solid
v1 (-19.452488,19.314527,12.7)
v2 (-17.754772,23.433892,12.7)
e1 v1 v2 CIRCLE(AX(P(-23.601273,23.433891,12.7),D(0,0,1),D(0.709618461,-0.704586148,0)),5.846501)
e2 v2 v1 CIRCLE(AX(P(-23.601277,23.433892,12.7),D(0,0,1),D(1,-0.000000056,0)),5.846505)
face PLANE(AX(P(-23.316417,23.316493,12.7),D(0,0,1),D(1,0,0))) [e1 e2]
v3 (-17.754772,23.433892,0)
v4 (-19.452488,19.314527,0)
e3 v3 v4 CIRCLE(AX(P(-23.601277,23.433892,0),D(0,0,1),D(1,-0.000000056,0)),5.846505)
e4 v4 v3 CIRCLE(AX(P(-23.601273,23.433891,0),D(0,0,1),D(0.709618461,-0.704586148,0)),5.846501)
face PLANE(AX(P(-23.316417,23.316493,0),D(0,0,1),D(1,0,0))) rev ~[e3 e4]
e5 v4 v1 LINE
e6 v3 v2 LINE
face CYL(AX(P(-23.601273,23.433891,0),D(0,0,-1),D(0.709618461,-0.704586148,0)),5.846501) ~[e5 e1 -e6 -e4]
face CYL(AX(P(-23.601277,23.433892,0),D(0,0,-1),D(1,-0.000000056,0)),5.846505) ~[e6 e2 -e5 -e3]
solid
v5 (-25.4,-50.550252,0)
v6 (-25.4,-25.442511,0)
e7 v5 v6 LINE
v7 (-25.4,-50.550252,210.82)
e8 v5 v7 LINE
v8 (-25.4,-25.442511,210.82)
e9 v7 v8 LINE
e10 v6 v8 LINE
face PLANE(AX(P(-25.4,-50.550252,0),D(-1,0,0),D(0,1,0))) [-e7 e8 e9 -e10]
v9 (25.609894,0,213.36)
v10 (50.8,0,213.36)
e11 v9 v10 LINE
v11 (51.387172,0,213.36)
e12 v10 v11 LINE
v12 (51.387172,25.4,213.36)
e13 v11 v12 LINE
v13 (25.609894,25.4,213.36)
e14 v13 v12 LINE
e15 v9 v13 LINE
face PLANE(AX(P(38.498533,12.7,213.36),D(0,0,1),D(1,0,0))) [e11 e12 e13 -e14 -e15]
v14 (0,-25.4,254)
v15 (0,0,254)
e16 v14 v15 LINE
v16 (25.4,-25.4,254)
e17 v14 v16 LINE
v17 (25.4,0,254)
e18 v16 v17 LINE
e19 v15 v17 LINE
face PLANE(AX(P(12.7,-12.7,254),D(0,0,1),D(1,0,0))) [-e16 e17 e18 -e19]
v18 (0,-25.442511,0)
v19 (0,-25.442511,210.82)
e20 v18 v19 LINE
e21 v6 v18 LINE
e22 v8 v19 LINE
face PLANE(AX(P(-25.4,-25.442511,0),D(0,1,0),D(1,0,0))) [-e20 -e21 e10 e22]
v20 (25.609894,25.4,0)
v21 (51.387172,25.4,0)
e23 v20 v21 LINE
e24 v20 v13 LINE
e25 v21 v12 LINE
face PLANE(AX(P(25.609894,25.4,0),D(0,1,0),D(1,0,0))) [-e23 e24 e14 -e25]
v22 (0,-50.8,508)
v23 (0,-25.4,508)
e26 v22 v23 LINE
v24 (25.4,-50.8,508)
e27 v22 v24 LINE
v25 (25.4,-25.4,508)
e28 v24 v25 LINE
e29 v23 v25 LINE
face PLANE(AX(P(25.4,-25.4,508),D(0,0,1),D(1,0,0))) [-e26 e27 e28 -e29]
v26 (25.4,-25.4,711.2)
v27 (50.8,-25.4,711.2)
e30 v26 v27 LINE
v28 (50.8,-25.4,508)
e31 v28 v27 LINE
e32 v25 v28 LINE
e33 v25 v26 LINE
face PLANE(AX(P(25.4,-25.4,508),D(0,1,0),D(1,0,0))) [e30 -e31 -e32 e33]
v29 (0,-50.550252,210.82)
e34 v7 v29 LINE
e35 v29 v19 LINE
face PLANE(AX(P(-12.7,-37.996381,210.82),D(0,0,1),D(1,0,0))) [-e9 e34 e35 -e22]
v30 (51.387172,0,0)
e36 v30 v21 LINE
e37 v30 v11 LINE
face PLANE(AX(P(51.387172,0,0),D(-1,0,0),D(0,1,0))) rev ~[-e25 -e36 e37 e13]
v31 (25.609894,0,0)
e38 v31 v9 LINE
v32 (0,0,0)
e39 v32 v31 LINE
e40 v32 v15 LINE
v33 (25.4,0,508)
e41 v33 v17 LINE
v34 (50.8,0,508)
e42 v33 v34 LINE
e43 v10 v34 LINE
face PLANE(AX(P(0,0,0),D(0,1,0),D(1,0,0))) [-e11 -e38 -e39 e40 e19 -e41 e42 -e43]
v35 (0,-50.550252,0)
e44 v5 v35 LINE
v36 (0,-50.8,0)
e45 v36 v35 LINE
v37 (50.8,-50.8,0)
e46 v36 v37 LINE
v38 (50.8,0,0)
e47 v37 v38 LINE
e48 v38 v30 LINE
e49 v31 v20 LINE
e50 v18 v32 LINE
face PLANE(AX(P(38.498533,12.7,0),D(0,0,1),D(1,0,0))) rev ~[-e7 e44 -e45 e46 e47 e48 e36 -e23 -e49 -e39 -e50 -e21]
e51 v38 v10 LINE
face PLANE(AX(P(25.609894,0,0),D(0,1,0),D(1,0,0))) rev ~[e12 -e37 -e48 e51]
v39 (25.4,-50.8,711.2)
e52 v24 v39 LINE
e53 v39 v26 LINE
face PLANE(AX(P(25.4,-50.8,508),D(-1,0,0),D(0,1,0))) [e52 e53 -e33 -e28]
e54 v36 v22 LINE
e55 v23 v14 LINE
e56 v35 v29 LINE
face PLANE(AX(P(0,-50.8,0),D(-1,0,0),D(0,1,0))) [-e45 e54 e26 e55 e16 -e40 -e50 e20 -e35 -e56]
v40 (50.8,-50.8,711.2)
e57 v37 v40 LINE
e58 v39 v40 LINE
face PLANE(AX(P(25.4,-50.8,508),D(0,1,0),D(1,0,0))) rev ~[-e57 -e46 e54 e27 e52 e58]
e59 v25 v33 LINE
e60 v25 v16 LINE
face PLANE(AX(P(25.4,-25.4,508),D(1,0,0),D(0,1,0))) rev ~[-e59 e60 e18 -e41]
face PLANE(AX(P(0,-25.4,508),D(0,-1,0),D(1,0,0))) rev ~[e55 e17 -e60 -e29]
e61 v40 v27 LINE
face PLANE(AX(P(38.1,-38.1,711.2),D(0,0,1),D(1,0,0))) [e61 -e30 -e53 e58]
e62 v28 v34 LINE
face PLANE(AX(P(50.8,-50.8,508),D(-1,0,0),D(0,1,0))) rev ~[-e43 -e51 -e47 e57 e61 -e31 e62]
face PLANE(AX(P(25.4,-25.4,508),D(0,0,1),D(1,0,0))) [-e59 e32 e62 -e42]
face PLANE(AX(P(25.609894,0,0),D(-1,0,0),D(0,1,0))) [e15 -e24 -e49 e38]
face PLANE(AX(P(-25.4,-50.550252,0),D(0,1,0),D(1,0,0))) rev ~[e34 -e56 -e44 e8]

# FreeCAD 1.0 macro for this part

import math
import FreeCAD as App
import Part
import Sketcher

V = App.Vector
Q = App.Units.Quantity

doc = App.newDocument("Part")
body = doc.addObject("PartDesign::Body", "Body")

# Sketch on XY plane
sketch1 = body.newObject("Sketcher::SketchObject", "Sketch")
sketch1.AttachmentSupport = (doc.getObject("XY_Plane"), [""])
sketch1.MapMode = "FlatFace"
sketch1.addGeometry(Part.LineSegment(V(0, 0, 0), V(0, -51, 0)), False)
sketch1.addGeometry(Part.LineSegment(V(0, -51, 0), V(51, -51, 0)), False)
sketch1.addGeometry(Part.LineSegment(V(51, -51, 0), V(51, 0, 0)), False)
sketch1.addGeometry(Part.LineSegment(V(51, 0, 0), V(0, 0, 0)), False)
sketch1.addConstraint(Sketcher.Constraint("Coincident", 0, 2, 1, 1))
sketch1.addConstraint(Sketcher.Constraint("Coincident", 1, 2, 2, 1))
sketch1.addConstraint(Sketcher.Constraint("Coincident", 2, 2, 3, 1))
sketch1.addConstraint(Sketcher.Constraint("Coincident", 3, 2, 0, 1))
sketch1.addConstraint(Sketcher.Constraint("Vertical", 0))
sketch1.addConstraint(Sketcher.Constraint("Horizontal", 1))
sketch1.addConstraint(Sketcher.Constraint("Vertical", 2))
sketch1.addConstraint(Sketcher.Constraint("Horizontal", 3))
sketch1.addConstraint(Sketcher.Constraint("Coincident", 3, 2, -1, 1))
sketch1.addConstraint(Sketcher.Constraint("Equal", 3, 0))
sketch1.addConstraint(Sketcher.Constraint("DistanceX", 1, 1, 1, 2, Q("2 in")))
pad1 = body.newObject("PartDesign::Pad", "Pad")
pad1.Profile = sketch1
pad1.Length = Q("20 in")

# Sketch on XY plane
sketch2 = body.newObject("Sketcher::SketchObject", "Sketch001")
sketch2.AttachmentSupport = (doc.getObject("XY_Plane"), [""])
sketch2.MapMode = "FlatFace"
sketch2.AttachmentOffset = App.Placement(V(0, 0, 20 * 25.4), App.Rotation())
sketch2.addGeometry(Part.LineSegment(V(0, 0, 0), V(0, -25, 0)), False)
sketch2.addGeometry(Part.LineSegment(V(0, -25, 0), V(25, -25, 0)), False)
sketch2.addGeometry(Part.LineSegment(V(25, -25, 0), V(25, 0, 0)), False)
sketch2.addGeometry(Part.LineSegment(V(25, 0, 0), V(0, 0, 0)), False)
sketch2.addConstraint(Sketcher.Constraint("Coincident", 0, 2, 1, 1))
sketch2.addConstraint(Sketcher.Constraint("Coincident", 1, 2, 2, 1))
sketch2.addConstraint(Sketcher.Constraint("Coincident", 2, 2, 3, 1))
sketch2.addConstraint(Sketcher.Constraint("Coincident", 3, 2, 0, 1))
sketch2.addConstraint(Sketcher.Constraint("Vertical", 0))
sketch2.addConstraint(Sketcher.Constraint("Horizontal", 1))
sketch2.addConstraint(Sketcher.Constraint("Vertical", 2))
sketch2.addConstraint(Sketcher.Constraint("Horizontal", 3))
sketch2.addConstraint(Sketcher.Constraint("Coincident", 3, 2, -1, 1))
sketch2.addConstraint(Sketcher.Constraint("Equal", 3, 0))
sketch2.addConstraint(Sketcher.Constraint("DistanceX", 1, 1, 1, 2, Q("1 in")))
pocket1 = body.newObject("PartDesign::Pocket", "Pocket")
pocket1.Profile = sketch2
pocket1.Length = Q("10 in")

# Sketch on XY plane
sketch3 = body.newObject("Sketcher::SketchObject", "Sketch002")
sketch3.AttachmentSupport = (doc.getObject("XY_Plane"), [""])
sketch3.MapMode = "FlatFace"
sketch3.AttachmentOffset = App.Placement(V(0, 0, 20 * 25.4), App.Rotation())
sketch3.addGeometry(Part.LineSegment(V(25, -25, 0), V(25, -51, 0)), False)
sketch3.addGeometry(Part.LineSegment(V(25, -51, 0), V(51, -51, 0)), False)
sketch3.addGeometry(Part.LineSegment(V(51, -51, 0), V(51, -25, 0)), False)
sketch3.addGeometry(Part.LineSegment(V(51, -25, 0), V(25, -25, 0)), False)
sketch3.addConstraint(Sketcher.Constraint("Coincident", 0, 2, 1, 1))
sketch3.addConstraint(Sketcher.Constraint("Coincident", 1, 2, 2, 1))
sketch3.addConstraint(Sketcher.Constraint("Coincident", 2, 2, 3, 1))
sketch3.addConstraint(Sketcher.Constraint("Coincident", 3, 2, 0, 1))
sketch3.addConstraint(Sketcher.Constraint("Vertical", 0))
sketch3.addConstraint(Sketcher.Constraint("Horizontal", 1))
sketch3.addConstraint(Sketcher.Constraint("Vertical", 2))
sketch3.addConstraint(Sketcher.Constraint("Horizontal", 3))
sketch3.addConstraint(Sketcher.Constraint("Equal", 3, 0))
sketch3.addConstraint(Sketcher.Constraint("DistanceX", 1, 1, 1, 2, Q("1 in")))
sketch3.addConstraint(Sketcher.Constraint("DistanceX", -1, 1, 0, 2, Q("1 in")))
sketch3.addConstraint(Sketcher.Constraint("DistanceY", 0, 2, -1, 1, Q("2 in")))
pad2 = body.newObject("PartDesign::Pad", "Pad001")
pad2.Profile = sketch3
pad2.Length = Q("8 in")

# Sketch on XY plane
sketch4 = body.newObject("Sketcher::SketchObject", "Sketch003")
sketch4.AttachmentSupport = (doc.getObject("XY_Plane"), [""])
sketch4.MapMode = "FlatFace"
sketch4.addGeometry(Part.LineSegment(V(26, 25, 0), V(26, 0, 0)), False)
sketch4.addGeometry(Part.LineSegment(V(26, 0, 0), V(51, 0, 0)), False)
sketch4.addGeometry(Part.LineSegment(V(51, 0, 0), V(51, 25, 0)), False)
sketch4.addGeometry(Part.LineSegment(V(51, 25, 0), V(26, 25, 0)), False)
sketch4.addConstraint(Sketcher.Constraint("Coincident", 0, 2, 1, 1))
sketch4.addConstraint(Sketcher.Constraint("Coincident", 1, 2, 2, 1))
sketch4.addConstraint(Sketcher.Constraint("Coincident", 2, 2, 3, 1))
sketch4.addConstraint(Sketcher.Constraint("Coincident", 3, 2, 0, 1))
sketch4.addConstraint(Sketcher.Constraint("Vertical", 0))
sketch4.addConstraint(Sketcher.Constraint("Horizontal", 1))
sketch4.addConstraint(Sketcher.Constraint("Vertical", 2))
sketch4.addConstraint(Sketcher.Constraint("Horizontal", 3))
sketch4.addConstraint(Sketcher.Constraint("PointOnObject", 0, 2, -1))
sketch4.addConstraint(Sketcher.Constraint("DistanceY", 0, 2, 0, 1, Q("1 in")))
sketch4.addConstraint(Sketcher.Constraint("DistanceX", 1, 1, 1, 2, 25.777278))
sketch4.addConstraint(Sketcher.Constraint("DistanceX", -1, 1, 0, 2, 25.609894))
pad3 = body.newObject("PartDesign::Pad", "Pad002")
pad3.Profile = sketch4
pad3.Length = Q("8.4 in")

# Sketch on XY plane
sketch5 = body.newObject("Sketcher::SketchObject", "Sketch004")
sketch5.AttachmentSupport = (doc.getObject("XY_Plane"), [""])
sketch5.MapMode = "FlatFace"
sketch5.addGeometry(Part.LineSegment(V(-25, -25, 0), V(-25, -51, 0)), False)
sketch5.addGeometry(Part.LineSegment(V(-25, -51, 0), V(0, -51, 0)), False)
sketch5.addGeometry(Part.LineSegment(V(0, -51, 0), V(0, -25, 0)), False)
sketch5.addGeometry(Part.LineSegment(V(0, -25, 0), V(-25, -25, 0)), False)
sketch5.addConstraint(Sketcher.Constraint("Coincident", 0, 2, 1, 1))
sketch5.addConstraint(Sketcher.Constraint("Coincident", 1, 2, 2, 1))
sketch5.addConstraint(Sketcher.Constraint("Coincident", 2, 2, 3, 1))
sketch5.addConstraint(Sketcher.Constraint("Coincident", 3, 2, 0, 1))
sketch5.addConstraint(Sketcher.Constraint("Vertical", 0))
sketch5.addConstraint(Sketcher.Constraint("Horizontal", 1))
sketch5.addConstraint(Sketcher.Constraint("Vertical", 2))
sketch5.addConstraint(Sketcher.Constraint("Horizontal", 3))
sketch5.addConstraint(Sketcher.Constraint("PointOnObject", 1, 2, -2))
sketch5.addConstraint(Sketcher.Constraint("DistanceX", 1, 1, 1, 2, Q("1 in")))
sketch5.addConstraint(Sketcher.Constraint("DistanceY", 0, 2, 0, 1, 25.107741))
sketch5.addConstraint(Sketcher.Constraint("DistanceY", 0, 2, -1, 1, 50.550252))
pad4 = body.newObject("PartDesign::Pad", "Pad003")
pad4.Profile = sketch5
pad4.Length = Q("8.3 in")
body2 = doc.addObject("PartDesign::Body", "Body001")

# Sketch on XY plane
sketch6 = body2.newObject("Sketcher::SketchObject", "Sketch005")
sketch6.AttachmentSupport = (doc.getObject("XY_Plane001"), [""])
sketch6.MapMode = "FlatFace"
sketch6.addGeometry(Part.ArcOfCircle(Part.Circle(V(-23.6, 23.4, 0), V(0, 0, 1), 5.8), math.radians(-45), math.radians(0)), False)
sketch6.addGeometry(Part.ArcOfCircle(Part.Circle(V(-23.6, 23.4, 0), V(0, 0, 1), 5.8), math.radians(0), math.radians(315)), False)
sketch6.addConstraint(Sketcher.Constraint("Tangent", 0, 1, 1, 2))
sketch6.addConstraint(Sketcher.Constraint("Coincident", 1, 1, 0, 2))
sketch6.addConstraint(Sketcher.Constraint("Horizontal", 0, 3, 1, 1))
sketch6.addConstraint(Sketcher.Constraint("Radius", 0, 5.846501))
sketch6.addConstraint(Sketcher.Constraint("DistanceY", -1, 1, 0, 3, 23.433891))
sketch6.addConstraint(Sketcher.Constraint("DistanceX", 1, 3, 0, 1, 4.148789))
sketch6.addConstraint(Sketcher.Constraint("DistanceX", 0, 3, -1, 1, 23.601273))
pad5 = body2.newObject("PartDesign::Pad", "Pad004")
pad5.Profile = sketch6
pad5.Length = Q("0.5 in")

doc.recompute()
